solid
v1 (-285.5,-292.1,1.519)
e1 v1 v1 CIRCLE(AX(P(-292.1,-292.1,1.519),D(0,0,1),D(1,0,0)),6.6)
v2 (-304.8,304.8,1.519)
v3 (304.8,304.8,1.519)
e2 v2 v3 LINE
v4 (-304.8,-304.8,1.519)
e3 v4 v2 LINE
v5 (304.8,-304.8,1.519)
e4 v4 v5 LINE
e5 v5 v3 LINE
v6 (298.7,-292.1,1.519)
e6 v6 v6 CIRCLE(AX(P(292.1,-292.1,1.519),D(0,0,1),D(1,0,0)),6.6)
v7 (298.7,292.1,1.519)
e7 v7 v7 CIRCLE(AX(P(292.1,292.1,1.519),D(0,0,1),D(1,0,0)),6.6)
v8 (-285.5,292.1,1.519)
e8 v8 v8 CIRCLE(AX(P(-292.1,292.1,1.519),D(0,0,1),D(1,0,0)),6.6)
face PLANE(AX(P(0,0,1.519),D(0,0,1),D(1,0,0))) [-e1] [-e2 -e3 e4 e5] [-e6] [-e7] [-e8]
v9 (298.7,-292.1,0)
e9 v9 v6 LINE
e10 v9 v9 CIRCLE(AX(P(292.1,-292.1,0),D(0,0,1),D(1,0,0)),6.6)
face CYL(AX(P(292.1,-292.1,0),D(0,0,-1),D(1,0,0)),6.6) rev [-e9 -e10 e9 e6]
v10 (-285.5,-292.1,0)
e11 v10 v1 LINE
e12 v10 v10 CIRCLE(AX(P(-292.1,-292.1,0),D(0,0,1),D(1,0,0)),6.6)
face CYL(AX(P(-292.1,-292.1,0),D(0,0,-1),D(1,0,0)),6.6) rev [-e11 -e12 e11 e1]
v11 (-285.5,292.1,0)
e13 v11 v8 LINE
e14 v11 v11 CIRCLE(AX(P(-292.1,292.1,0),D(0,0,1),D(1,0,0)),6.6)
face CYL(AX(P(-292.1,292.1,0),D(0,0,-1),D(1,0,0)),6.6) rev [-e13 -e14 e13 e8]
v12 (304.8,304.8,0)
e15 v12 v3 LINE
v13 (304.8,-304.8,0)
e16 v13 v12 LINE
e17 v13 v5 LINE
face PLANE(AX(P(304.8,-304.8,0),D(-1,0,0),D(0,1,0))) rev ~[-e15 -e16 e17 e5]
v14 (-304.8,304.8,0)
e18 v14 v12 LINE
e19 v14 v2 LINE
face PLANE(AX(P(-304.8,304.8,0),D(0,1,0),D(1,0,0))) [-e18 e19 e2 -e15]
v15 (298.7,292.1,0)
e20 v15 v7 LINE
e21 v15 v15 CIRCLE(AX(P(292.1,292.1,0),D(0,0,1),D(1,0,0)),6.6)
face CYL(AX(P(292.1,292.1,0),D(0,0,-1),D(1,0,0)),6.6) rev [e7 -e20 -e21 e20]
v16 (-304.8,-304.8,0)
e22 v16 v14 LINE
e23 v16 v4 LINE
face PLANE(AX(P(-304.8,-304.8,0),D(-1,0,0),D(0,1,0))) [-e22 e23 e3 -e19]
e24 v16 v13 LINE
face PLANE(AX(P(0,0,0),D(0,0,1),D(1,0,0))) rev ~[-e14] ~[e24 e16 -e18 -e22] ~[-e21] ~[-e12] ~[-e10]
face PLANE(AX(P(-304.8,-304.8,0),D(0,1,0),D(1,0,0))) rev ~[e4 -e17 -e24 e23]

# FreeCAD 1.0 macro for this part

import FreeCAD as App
import Part
import Sketcher

V = App.Vector
Q = App.Units.Quantity

doc = App.newDocument("Part")
params = doc.addObject("Spreadsheet::Sheet", "Params")
for row, (alias, value) in enumerate([
    ("sketch1_diameter", "13.2 mm"),
    ("sketch1_width", "609.6 mm"),
    ("pad1_length", "1.519 mm"),
], start=1):
    params.set(f"A{row}", alias)
    params.set(f"B{row}", "=" + value)
    params.setAlias(f"B{row}", alias)

body = doc.addObject("PartDesign::Body", "Body")

# Sketch on XY plane
sketch1 = doc.addObject("Sketcher::SketchObject", "Sketch")
body.addObject(sketch1)
sketch1.AttachmentSupport = (doc.XY_Plane, [""])
sketch1.MapMode = "FlatFace"
sketch1.addGeometry(Part.LineSegment(V(-304.8, 304.8, 0), V(-304.8, -304.8, 0)), False)
sketch1.addGeometry(Part.LineSegment(V(-304.8, -304.8, 0), V(304.8, -304.8, 0)), False)
sketch1.addGeometry(Part.LineSegment(V(304.8, -304.8, 0), V(304.8, 304.8, 0)), False)
sketch1.addGeometry(Part.LineSegment(V(304.8, 304.8, 0), V(-304.8, 304.8, 0)), False)
sketch1.addGeometry(Part.Circle(V(-292.1, -292.1, 0), V(0, 0, 1), 6.6), False)
sketch1.addGeometry(Part.Circle(V(292.1, -292.1, 0), V(0, 0, 1), 6.6), False)
sketch1.addGeometry(Part.Circle(V(-292.1, 292.1, 0), V(0, 0, 1), 6.6), False)
sketch1.addGeometry(Part.Circle(V(292.1, 292.1, 0), V(0, 0, 1), 6.6), False)
sketch1.addConstraint(Sketcher.Constraint("Coincident", 0, 2, 1, 1))
sketch1.addConstraint(Sketcher.Constraint("Coincident", 1, 2, 2, 1))
sketch1.addConstraint(Sketcher.Constraint("Coincident", 2, 2, 3, 1))
sketch1.addConstraint(Sketcher.Constraint("Coincident", 3, 2, 0, 1))
sketch1.addConstraint(Sketcher.Constraint("Vertical", 0))
sketch1.addConstraint(Sketcher.Constraint("Horizontal", 1))
sketch1.addConstraint(Sketcher.Constraint("Vertical", 2))
sketch1.addConstraint(Sketcher.Constraint("Horizontal", 3))
sketch1.addConstraint(Sketcher.Constraint("Equal", 4, 5))
sketch1.addConstraint(Sketcher.Constraint("Equal", 5, 6))
sketch1.addConstraint(Sketcher.Constraint("Equal", 6, 7))
sketch1.addConstraint(Sketcher.Constraint("Symmetric", 5, 3, 6, 3, -1, 1))
sketch1.addConstraint(Sketcher.Constraint("Symmetric", 4, 3, 7, 3, -1, 1))
sketch1.addConstraint(Sketcher.Constraint("Symmetric", 0, 2, 2, 2, -1, 1))
sketch1.addConstraint(Sketcher.Constraint("Symmetric", 4, 3, 5, 3, -2))
sketch1.addConstraint(Sketcher.Constraint("Equal", 3, 0))
sketch1.addConstraint(Sketcher.Constraint("Diameter", 4, Q("13.2 mm")))
sketch1.addConstraint(Sketcher.Constraint("DistanceX", 1, 1, 1, 2, Q("609.6 mm")))
sketch1.addConstraint(Sketcher.Constraint("DistanceX", 4, 3, -1, 1, Q("292.1 mm")))
sketch1.addConstraint(Sketcher.Constraint("DistanceY", 4, 3, -1, 1, Q("292.1 mm")))
sketch1.setExpression("Constraints[16]", "Params.sketch1_diameter")
sketch1.setExpression("Constraints[17]", "Params.sketch1_width")
pad1 = doc.addObject("PartDesign::Pad", "Pad")
body.addObject(pad1)
pad1.Profile = sketch1
pad1.setExpression("Length", "Params.pad1_length")

doc.recompute()
